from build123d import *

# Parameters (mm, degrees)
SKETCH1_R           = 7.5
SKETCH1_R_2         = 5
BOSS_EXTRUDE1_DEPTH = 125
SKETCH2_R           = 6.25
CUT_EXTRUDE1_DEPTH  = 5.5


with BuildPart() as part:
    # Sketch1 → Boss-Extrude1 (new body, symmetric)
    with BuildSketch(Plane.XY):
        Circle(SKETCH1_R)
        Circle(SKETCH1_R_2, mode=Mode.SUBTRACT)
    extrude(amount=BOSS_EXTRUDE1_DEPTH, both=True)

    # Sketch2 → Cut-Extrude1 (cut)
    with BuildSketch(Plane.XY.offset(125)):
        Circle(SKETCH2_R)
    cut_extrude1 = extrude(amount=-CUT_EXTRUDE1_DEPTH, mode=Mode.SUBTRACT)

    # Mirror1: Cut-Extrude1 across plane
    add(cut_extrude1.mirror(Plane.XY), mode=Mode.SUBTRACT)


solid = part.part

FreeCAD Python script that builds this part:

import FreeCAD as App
import Part
import Sketcher

V = App.Vector
Q = App.Units.Quantity

doc = App.newDocument("Part")
body = doc.addObject("PartDesign::Body", "Body")

# Sketch on XY plane
sketch1 = body.newObject("Sketcher::SketchObject", "Sketch")
sketch1.AttachmentSupport = (doc.getObject("XY_Plane"), [""])
sketch1.MapMode = "FlatFace"
sketch1.addGeometry(Part.Circle(V(0, 0, 0), V(0, 0, 1), 7.5), False)
sketch1.addGeometry(Part.Circle(V(0, 0, 0), V(0, 0, 1), 5), False)
sketch1.addConstraint(Sketcher.Constraint("Coincident", 0, 3, -1, 1))
sketch1.addConstraint(Sketcher.Constraint("Coincident", 1, 3, -1, 1))
sketch1.addConstraint(Sketcher.Constraint("Diameter", 0, Q("15 mm")))
sketch1.addConstraint(Sketcher.Constraint("Diameter", 1, Q("10 mm")))
pad1 = body.newObject("PartDesign::Pad", "Pad")
pad1.Profile = sketch1
pad1.Length = 250
pad1.Midplane = True

# Sketch on XY plane
sketch2 = body.newObject("Sketcher::SketchObject", "Sketch001")
sketch2.AttachmentSupport = (doc.getObject("XY_Plane"), [""])
sketch2.MapMode = "FlatFace"
sketch2.AttachmentOffset = App.Placement(V(0, 0, 125), App.Rotation())
sketch2.addGeometry(Part.Circle(V(0, 0, 0), V(0, 0, 1), 6.25), False)
sketch2.addConstraint(Sketcher.Constraint("Coincident", 0, 3, -1, 1))
sketch2.addConstraint(Sketcher.Constraint("Diameter", 0, Q("12.5 mm")))
pocket1 = body.newObject("PartDesign::Pocket", "Pocket")
pocket1.Profile = sketch2
pocket1.Length = 5.5
doc.recompute()

mirrored = body.newObject("PartDesign::Mirrored", "Mirrored")
mirrored.Originals = [pocket1]
mirrored.MirrorPlane = (doc.getObject("XY_Plane"), [""])
body.Tip = mirrored

doc.recompute()
